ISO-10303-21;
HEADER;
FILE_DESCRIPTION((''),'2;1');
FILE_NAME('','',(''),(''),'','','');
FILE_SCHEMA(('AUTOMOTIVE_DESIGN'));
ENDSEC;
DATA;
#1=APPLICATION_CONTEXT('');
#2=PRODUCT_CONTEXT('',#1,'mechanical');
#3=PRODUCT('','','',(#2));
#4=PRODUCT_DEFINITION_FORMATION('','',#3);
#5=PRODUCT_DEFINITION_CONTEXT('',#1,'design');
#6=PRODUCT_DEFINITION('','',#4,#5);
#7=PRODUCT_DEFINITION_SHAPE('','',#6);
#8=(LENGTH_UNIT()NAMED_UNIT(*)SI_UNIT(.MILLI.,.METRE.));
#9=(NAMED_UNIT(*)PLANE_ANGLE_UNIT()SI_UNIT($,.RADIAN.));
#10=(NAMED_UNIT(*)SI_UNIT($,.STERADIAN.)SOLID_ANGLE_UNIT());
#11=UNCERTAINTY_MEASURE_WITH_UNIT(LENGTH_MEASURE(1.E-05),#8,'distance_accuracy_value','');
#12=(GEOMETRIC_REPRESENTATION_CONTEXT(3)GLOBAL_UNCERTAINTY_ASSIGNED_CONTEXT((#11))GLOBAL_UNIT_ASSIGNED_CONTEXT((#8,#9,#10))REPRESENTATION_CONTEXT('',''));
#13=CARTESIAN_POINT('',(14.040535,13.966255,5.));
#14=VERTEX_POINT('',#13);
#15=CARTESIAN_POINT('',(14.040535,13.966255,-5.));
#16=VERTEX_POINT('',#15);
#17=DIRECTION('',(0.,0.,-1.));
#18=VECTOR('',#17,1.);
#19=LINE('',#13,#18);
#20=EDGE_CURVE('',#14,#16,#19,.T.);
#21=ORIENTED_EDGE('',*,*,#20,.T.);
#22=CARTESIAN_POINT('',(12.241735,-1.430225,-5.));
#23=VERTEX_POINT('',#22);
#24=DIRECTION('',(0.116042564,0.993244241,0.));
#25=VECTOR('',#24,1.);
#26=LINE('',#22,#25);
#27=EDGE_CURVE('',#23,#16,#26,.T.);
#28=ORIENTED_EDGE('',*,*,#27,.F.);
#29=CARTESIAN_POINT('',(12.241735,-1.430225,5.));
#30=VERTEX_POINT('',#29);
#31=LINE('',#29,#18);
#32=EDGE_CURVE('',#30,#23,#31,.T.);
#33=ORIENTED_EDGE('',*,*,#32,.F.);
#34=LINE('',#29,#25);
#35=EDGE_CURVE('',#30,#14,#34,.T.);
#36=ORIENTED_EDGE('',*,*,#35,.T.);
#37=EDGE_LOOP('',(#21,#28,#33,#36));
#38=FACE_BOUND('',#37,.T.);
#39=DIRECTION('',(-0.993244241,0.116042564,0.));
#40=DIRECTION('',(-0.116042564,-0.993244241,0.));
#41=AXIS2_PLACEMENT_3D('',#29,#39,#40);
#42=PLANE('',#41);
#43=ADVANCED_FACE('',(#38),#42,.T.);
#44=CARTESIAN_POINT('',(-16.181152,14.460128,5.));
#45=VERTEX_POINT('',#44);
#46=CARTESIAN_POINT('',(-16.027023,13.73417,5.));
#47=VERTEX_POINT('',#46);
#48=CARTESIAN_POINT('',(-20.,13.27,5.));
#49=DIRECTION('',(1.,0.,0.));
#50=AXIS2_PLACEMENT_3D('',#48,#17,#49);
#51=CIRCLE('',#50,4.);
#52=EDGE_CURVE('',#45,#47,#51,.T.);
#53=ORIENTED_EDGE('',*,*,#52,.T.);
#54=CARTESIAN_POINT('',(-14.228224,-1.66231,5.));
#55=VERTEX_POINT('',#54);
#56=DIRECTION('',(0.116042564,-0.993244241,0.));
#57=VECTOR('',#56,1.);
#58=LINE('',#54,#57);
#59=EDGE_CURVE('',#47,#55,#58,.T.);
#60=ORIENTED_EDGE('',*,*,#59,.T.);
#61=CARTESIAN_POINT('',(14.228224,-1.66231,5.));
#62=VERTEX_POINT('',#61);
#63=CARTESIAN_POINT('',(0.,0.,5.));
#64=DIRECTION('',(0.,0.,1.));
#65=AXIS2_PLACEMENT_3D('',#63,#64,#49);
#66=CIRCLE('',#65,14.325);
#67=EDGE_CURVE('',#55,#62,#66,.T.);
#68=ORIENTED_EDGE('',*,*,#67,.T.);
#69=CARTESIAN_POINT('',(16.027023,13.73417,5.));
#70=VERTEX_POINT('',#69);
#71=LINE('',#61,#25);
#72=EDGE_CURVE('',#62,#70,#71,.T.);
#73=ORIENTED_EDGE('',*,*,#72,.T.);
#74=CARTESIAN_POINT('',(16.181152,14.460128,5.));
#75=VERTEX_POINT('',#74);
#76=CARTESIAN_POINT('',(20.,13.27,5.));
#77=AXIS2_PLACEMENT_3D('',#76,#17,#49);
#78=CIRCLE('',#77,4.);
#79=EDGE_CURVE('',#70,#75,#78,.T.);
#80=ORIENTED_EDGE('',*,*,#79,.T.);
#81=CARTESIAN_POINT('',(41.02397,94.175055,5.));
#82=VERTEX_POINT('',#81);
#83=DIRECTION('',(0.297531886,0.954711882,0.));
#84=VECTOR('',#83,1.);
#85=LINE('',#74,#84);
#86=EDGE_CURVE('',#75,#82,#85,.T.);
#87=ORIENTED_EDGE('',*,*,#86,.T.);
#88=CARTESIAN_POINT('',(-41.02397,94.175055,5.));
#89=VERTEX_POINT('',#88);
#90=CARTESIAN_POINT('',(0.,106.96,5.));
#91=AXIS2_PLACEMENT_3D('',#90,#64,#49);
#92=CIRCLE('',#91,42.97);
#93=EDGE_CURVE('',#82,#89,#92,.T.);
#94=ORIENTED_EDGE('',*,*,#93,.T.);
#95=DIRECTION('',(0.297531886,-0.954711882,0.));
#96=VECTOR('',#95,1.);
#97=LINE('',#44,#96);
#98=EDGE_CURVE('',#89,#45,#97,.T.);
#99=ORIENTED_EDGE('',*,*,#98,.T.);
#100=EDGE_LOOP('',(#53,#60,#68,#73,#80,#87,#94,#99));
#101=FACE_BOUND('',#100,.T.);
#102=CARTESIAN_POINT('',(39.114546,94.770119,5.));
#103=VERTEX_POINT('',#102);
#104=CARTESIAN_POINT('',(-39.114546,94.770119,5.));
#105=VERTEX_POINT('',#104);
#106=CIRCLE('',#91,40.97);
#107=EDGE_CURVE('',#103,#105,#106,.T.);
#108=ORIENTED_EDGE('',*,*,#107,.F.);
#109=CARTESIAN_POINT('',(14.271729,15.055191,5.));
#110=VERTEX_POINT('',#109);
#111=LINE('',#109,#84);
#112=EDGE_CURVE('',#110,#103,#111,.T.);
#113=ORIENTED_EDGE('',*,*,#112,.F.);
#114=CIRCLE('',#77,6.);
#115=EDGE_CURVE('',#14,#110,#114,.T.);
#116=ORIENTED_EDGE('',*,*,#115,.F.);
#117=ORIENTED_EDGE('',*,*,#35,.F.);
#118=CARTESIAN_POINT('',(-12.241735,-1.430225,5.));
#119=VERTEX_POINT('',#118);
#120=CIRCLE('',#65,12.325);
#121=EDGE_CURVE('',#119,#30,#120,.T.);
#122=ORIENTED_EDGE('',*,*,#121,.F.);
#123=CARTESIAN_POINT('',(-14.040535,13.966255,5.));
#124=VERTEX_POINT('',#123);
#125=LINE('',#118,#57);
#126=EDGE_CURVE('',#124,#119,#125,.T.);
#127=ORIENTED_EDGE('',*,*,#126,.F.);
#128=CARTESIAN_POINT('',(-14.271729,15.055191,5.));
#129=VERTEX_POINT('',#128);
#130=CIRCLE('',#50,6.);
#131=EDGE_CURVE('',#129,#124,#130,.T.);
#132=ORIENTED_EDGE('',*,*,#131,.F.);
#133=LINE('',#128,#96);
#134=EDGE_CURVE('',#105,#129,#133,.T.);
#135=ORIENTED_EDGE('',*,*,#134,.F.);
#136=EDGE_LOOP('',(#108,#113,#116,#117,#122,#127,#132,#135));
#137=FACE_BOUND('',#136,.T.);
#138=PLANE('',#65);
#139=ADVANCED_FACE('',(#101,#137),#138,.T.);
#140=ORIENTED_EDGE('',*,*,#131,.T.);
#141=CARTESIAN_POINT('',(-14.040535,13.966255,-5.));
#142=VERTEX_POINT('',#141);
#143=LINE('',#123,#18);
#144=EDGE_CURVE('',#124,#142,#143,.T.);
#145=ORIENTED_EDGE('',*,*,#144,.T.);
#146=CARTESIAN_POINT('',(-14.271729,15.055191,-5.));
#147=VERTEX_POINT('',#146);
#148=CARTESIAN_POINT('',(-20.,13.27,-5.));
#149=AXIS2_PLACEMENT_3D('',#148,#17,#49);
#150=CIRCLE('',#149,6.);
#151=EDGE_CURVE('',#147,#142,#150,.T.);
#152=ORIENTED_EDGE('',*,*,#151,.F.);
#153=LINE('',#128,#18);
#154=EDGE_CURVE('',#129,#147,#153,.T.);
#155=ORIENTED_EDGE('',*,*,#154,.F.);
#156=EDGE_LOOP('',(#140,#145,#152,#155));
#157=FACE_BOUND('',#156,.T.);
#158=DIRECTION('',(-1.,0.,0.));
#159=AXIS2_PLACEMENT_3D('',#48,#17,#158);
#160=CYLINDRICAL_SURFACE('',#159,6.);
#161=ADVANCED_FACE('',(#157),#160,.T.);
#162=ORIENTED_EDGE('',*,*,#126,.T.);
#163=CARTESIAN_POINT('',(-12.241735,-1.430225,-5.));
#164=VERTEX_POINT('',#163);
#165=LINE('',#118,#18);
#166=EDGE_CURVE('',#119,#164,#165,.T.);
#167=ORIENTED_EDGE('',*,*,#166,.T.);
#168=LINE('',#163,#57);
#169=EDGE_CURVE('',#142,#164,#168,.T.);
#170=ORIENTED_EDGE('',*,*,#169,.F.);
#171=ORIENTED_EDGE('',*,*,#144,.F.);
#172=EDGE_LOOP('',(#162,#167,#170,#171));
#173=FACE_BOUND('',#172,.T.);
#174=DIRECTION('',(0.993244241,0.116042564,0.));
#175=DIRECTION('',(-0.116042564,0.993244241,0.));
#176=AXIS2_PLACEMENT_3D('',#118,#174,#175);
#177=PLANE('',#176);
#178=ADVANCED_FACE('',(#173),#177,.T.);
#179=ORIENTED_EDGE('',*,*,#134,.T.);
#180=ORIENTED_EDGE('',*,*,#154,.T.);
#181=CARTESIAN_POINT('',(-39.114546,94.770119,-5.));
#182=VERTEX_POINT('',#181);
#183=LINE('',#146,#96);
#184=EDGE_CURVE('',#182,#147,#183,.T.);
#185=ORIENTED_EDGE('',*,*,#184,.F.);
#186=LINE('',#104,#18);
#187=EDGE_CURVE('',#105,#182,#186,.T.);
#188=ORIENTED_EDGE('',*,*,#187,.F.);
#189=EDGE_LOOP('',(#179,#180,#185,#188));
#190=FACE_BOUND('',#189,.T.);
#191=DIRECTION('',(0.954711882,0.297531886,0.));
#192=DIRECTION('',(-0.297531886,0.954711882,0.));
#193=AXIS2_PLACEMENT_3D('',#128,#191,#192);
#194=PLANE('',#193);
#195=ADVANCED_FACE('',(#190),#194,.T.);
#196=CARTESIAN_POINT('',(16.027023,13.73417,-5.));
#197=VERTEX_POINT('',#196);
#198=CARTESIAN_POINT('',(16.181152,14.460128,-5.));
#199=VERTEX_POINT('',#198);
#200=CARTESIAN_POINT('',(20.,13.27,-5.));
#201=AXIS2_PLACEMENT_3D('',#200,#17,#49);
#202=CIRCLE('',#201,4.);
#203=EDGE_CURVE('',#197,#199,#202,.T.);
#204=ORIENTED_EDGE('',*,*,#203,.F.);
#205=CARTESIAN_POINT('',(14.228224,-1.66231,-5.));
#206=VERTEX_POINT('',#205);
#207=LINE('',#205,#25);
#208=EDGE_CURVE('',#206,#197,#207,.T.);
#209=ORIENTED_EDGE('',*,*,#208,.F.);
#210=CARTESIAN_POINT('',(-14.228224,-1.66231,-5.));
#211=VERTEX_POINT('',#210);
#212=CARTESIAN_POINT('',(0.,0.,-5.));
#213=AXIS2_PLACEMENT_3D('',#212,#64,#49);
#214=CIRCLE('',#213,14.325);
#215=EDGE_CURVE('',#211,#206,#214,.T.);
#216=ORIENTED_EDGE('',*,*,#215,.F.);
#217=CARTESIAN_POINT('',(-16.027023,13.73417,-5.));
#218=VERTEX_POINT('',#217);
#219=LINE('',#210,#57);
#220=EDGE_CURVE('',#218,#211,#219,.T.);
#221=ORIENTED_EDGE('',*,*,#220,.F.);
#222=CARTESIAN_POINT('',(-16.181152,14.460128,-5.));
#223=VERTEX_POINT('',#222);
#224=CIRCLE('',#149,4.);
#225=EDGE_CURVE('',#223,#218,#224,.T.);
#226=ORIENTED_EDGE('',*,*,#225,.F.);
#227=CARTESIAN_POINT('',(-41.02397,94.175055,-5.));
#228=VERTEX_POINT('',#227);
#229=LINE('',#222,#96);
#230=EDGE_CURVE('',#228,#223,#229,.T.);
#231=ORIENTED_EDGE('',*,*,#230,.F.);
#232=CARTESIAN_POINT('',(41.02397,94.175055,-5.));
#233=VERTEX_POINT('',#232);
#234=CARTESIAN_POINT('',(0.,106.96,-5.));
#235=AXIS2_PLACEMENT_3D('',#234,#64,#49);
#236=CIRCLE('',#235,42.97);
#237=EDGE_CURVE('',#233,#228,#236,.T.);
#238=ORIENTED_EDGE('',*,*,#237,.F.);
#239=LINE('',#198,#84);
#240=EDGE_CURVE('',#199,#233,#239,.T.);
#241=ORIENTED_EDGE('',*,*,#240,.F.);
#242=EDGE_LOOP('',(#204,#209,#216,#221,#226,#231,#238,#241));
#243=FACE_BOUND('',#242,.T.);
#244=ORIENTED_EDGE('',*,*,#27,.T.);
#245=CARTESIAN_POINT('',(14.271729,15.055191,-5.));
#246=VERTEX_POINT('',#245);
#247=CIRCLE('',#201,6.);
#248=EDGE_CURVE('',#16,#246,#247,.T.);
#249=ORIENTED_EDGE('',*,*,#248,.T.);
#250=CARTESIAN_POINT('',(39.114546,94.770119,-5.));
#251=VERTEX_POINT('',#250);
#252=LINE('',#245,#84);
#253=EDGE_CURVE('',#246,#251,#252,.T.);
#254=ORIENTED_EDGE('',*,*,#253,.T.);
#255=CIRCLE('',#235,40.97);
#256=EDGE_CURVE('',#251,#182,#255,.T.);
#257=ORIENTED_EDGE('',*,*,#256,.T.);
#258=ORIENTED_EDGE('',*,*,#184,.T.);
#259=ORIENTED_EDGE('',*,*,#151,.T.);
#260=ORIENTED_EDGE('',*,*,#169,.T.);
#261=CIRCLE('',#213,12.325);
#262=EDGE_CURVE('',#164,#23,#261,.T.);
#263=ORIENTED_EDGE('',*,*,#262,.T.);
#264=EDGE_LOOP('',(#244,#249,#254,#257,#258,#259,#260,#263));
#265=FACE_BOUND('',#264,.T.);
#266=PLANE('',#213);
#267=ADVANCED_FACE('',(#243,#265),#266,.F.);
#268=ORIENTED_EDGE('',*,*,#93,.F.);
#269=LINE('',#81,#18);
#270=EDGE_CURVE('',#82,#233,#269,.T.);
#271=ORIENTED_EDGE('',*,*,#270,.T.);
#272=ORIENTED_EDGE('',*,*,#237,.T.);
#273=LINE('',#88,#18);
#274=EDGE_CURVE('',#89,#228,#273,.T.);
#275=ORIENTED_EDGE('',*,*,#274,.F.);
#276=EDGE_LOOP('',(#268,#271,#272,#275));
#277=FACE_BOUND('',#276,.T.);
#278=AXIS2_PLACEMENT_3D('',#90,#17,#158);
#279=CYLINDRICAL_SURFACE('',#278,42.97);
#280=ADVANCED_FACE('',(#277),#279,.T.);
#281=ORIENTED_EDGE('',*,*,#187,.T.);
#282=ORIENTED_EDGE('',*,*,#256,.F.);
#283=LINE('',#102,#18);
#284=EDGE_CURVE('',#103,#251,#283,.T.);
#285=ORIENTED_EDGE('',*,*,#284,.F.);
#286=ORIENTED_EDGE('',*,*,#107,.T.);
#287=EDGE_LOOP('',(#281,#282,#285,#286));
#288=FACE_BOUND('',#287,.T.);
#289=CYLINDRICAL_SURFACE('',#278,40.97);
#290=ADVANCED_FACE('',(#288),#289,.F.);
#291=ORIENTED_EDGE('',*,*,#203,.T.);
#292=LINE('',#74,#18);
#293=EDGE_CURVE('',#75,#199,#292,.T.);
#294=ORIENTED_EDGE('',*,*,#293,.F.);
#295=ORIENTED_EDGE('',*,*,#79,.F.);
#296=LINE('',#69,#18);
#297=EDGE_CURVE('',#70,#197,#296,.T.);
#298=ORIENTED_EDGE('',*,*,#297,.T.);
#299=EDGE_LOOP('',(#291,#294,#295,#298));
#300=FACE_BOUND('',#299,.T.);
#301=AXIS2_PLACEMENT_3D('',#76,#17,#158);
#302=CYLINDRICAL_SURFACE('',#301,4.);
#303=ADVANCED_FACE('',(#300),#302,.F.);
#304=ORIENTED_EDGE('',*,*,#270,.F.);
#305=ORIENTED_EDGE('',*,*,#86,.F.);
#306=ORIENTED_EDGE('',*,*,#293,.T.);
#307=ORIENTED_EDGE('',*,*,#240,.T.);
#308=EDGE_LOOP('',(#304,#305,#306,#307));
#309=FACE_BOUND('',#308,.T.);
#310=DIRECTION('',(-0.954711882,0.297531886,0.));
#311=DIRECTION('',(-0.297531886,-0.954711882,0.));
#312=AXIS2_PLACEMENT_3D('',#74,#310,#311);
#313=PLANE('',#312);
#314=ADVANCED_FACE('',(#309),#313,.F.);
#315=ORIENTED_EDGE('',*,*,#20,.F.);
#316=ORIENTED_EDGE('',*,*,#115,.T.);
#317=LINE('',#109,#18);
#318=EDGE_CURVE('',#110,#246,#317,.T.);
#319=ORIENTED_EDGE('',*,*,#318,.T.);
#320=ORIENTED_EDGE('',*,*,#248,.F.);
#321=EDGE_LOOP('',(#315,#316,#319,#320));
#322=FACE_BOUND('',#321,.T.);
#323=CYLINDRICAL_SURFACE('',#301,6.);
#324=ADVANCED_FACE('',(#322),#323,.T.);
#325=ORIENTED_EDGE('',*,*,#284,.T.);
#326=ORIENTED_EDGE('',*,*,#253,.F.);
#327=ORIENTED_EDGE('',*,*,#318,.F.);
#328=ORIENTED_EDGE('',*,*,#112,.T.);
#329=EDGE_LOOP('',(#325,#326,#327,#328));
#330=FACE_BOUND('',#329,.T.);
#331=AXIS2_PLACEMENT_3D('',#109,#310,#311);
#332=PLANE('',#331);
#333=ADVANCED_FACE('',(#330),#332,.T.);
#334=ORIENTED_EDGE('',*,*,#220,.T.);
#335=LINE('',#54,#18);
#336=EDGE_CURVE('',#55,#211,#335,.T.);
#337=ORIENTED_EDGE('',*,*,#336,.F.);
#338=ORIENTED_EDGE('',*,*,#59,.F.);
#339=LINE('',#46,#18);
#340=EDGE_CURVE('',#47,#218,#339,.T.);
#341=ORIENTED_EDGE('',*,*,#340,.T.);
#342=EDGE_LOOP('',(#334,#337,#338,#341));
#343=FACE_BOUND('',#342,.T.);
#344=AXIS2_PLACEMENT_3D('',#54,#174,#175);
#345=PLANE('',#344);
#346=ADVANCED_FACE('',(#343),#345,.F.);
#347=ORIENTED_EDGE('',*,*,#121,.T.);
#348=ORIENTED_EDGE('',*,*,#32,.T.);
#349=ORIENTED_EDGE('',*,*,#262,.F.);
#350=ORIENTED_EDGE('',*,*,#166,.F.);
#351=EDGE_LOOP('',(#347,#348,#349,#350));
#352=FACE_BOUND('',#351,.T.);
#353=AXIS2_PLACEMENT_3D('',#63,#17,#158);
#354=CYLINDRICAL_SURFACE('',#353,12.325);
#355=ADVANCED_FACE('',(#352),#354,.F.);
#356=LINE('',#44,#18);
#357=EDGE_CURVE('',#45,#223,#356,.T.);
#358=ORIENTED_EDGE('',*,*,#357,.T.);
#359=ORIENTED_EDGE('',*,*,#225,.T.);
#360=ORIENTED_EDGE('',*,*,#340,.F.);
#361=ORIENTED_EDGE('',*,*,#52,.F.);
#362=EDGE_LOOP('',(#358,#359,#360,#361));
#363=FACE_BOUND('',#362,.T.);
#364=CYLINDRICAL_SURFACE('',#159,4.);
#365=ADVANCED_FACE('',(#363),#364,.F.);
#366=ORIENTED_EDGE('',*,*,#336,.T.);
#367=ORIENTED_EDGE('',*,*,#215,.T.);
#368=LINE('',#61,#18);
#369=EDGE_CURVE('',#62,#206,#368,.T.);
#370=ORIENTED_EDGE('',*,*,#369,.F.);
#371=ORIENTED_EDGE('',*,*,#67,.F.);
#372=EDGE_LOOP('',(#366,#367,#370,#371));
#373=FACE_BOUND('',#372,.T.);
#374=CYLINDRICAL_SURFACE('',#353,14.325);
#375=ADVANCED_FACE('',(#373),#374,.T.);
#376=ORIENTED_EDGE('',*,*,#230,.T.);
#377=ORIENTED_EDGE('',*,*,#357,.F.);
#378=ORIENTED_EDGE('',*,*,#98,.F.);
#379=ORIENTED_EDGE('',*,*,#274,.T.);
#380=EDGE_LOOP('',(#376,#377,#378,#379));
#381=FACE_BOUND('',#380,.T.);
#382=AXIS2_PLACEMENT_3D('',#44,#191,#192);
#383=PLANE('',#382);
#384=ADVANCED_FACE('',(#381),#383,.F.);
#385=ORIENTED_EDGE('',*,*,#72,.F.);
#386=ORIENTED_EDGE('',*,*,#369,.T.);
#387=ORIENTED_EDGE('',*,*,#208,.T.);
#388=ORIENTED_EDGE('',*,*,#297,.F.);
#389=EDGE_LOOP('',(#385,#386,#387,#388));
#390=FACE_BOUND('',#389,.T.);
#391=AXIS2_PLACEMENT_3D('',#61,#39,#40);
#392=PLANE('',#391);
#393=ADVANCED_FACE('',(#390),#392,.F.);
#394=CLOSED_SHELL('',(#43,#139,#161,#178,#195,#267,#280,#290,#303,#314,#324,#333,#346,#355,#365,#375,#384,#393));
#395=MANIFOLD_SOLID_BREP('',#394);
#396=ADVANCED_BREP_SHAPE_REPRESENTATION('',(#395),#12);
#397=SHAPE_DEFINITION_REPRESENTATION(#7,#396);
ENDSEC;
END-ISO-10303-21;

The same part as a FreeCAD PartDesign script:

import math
import FreeCAD as App
import Part
import Sketcher
Q = App.Units.Quantity

doc = App.newDocument("Part")
body = doc.addObject("PartDesign::Body", "Body")

# Sketch on XY plane
sketch1 = body.newObject("Sketcher::SketchObject", "Sketch")
sketch1.AttachmentSupport = (doc.getObject("XY_Plane"), [""])
sketch1.MapMode = "FlatFace"
sketch1.addGeometry([
    Part.LineSegment(App.Vector(-16.027023, 13.73417, 0), App.Vector(-14.228224, -1.66231, 0)),  # 0
    Part.ArcOfCircle(Part.Circle(App.Vector(0, 0, 0), App.Vector(0, 0, 1), 14.325), math.radians(-173.336238), math.radians(-6.663762)),  # 1
    Part.LineSegment(App.Vector(14.228224, -1.66231, 0), App.Vector(16.027023, 13.73417, 0)),  # 2
    Part.ArcOfCircle(Part.Circle(App.Vector(20, 13.27, 0), App.Vector(0, 0, 1), 4), math.radians(162.690577), math.radians(173.336238)),  # 3
    Part.LineSegment(App.Vector(16.181152, 14.460128, 0), App.Vector(41.02397, 94.175055, 0)),  # 4
    Part.ArcOfCircle(Part.Circle(App.Vector(0, 106.96, 0), App.Vector(0, 0, 1), 42.97), math.radians(-17.309423), math.radians(197.309423)),  # 5
    Part.LineSegment(App.Vector(-41.02397, 94.175055, 0), App.Vector(-16.181152, 14.460128, 0)),  # 6
    Part.ArcOfCircle(Part.Circle(App.Vector(-20, 13.27, 0), App.Vector(0, 0, 1), 4), math.radians(6.663762), math.radians(17.309423)),  # 7
    Part.LineSegment(App.Vector(-14.271729, 15.055191, 0), App.Vector(-39.114546, 94.770119, 0)),  # 8
    Part.ArcOfCircle(Part.Circle(App.Vector(0, 106.96, 0), App.Vector(0, 0, 1), 40.97), math.radians(-17.309423), math.radians(197.309423)),  # 9
    Part.LineSegment(App.Vector(39.114546, 94.770119, 0), App.Vector(14.271729, 15.055191, 0)),  # 10
    Part.ArcOfCircle(Part.Circle(App.Vector(20, 13.27, 0), App.Vector(0, 0, 1), 6), math.radians(162.690577), math.radians(173.336238)),  # 11
    Part.LineSegment(App.Vector(14.040535, 13.966255, 0), App.Vector(12.241735, -1.430225, 0)),  # 12
    Part.ArcOfCircle(Part.Circle(App.Vector(0, 0, 0), App.Vector(0, 0, 1), 12.325), math.radians(-173.336238), math.radians(-6.663762)),  # 13
    Part.LineSegment(App.Vector(-12.241735, -1.430225, 0), App.Vector(-14.040535, 13.966255, 0)),  # 14
    Part.ArcOfCircle(Part.Circle(App.Vector(-20, 13.27, 0), App.Vector(0, 0, 1), 6), math.radians(6.663762), math.radians(17.309423)),  # 15
], False)
sketch1.addConstraint([
    Sketcher.Constraint("Tangent", 0, 2, 1, 1),
    Sketcher.Constraint("Tangent", 1, 2, 2, 1),
    Sketcher.Constraint("Tangent", 2, 2, 3, 2),
    Sketcher.Constraint("Tangent", 3, 1, 4, 1),
    Sketcher.Constraint("Tangent", 4, 2, 5, 1),
    Sketcher.Constraint("Tangent", 5, 2, 6, 1),
    Sketcher.Constraint("Tangent", 6, 2, 7, 2),
    Sketcher.Constraint("Tangent", 7, 1, 0, 1),
    Sketcher.Constraint("Tangent", 8, 2, 9, 2),
    Sketcher.Constraint("Tangent", 9, 1, 10, 1),
    Sketcher.Constraint("Tangent", 10, 2, 11, 1),
    Sketcher.Constraint("Tangent", 11, 2, 12, 1),
    Sketcher.Constraint("Tangent", 12, 2, 13, 2),
    Sketcher.Constraint("Tangent", 13, 1, 14, 1),
    Sketcher.Constraint("Tangent", 14, 2, 15, 1),
    Sketcher.Constraint("Tangent", 15, 2, 8, 1),
    Sketcher.Constraint("Coincident", 1, 3, -1, 1),
    Sketcher.Constraint("Coincident", 13, 3, -1, 1),
    Sketcher.Constraint("Coincident", 9, 3, 5, 3),
    Sketcher.Constraint("Coincident", 11, 3, 3, 3),
    Sketcher.Constraint("Coincident", 15, 3, 7, 3),
    Sketcher.Constraint("Equal", 3, 7),
    Sketcher.Constraint("Equal", 11, 15),
    Sketcher.Constraint("Symmetric", 3, 3, 7, 3, -2),
    Sketcher.Constraint("PointOnObject", 5, 3, -2),
    Sketcher.Constraint("Parallel", 6, 8),
    Sketcher.Constraint("Parallel", 2, 12),
    Sketcher.Constraint("Radius", 3, Q("4 mm")),
    Sketcher.Constraint("Radius", 11, Q("6 mm")),
    Sketcher.Constraint("Radius", 5, Q("42.97 mm")),
    Sketcher.Constraint("DistanceX", -1, 1, 3, 3, Q("20 mm")),
    Sketcher.Constraint("Radius", 1, Q("14.325 mm")),
    Sketcher.Constraint("DistanceY", -1, 1, 3, 3, Q("13.27 mm")),
    Sketcher.Constraint("DistanceY", -1, 1, 5, 3, Q("106.96 mm")),
])
pad1 = body.newObject("PartDesign::Pad", "Pad")
pad1.Profile = sketch1
pad1.Length = 10
pad1.Midplane = True

doc.recompute()
